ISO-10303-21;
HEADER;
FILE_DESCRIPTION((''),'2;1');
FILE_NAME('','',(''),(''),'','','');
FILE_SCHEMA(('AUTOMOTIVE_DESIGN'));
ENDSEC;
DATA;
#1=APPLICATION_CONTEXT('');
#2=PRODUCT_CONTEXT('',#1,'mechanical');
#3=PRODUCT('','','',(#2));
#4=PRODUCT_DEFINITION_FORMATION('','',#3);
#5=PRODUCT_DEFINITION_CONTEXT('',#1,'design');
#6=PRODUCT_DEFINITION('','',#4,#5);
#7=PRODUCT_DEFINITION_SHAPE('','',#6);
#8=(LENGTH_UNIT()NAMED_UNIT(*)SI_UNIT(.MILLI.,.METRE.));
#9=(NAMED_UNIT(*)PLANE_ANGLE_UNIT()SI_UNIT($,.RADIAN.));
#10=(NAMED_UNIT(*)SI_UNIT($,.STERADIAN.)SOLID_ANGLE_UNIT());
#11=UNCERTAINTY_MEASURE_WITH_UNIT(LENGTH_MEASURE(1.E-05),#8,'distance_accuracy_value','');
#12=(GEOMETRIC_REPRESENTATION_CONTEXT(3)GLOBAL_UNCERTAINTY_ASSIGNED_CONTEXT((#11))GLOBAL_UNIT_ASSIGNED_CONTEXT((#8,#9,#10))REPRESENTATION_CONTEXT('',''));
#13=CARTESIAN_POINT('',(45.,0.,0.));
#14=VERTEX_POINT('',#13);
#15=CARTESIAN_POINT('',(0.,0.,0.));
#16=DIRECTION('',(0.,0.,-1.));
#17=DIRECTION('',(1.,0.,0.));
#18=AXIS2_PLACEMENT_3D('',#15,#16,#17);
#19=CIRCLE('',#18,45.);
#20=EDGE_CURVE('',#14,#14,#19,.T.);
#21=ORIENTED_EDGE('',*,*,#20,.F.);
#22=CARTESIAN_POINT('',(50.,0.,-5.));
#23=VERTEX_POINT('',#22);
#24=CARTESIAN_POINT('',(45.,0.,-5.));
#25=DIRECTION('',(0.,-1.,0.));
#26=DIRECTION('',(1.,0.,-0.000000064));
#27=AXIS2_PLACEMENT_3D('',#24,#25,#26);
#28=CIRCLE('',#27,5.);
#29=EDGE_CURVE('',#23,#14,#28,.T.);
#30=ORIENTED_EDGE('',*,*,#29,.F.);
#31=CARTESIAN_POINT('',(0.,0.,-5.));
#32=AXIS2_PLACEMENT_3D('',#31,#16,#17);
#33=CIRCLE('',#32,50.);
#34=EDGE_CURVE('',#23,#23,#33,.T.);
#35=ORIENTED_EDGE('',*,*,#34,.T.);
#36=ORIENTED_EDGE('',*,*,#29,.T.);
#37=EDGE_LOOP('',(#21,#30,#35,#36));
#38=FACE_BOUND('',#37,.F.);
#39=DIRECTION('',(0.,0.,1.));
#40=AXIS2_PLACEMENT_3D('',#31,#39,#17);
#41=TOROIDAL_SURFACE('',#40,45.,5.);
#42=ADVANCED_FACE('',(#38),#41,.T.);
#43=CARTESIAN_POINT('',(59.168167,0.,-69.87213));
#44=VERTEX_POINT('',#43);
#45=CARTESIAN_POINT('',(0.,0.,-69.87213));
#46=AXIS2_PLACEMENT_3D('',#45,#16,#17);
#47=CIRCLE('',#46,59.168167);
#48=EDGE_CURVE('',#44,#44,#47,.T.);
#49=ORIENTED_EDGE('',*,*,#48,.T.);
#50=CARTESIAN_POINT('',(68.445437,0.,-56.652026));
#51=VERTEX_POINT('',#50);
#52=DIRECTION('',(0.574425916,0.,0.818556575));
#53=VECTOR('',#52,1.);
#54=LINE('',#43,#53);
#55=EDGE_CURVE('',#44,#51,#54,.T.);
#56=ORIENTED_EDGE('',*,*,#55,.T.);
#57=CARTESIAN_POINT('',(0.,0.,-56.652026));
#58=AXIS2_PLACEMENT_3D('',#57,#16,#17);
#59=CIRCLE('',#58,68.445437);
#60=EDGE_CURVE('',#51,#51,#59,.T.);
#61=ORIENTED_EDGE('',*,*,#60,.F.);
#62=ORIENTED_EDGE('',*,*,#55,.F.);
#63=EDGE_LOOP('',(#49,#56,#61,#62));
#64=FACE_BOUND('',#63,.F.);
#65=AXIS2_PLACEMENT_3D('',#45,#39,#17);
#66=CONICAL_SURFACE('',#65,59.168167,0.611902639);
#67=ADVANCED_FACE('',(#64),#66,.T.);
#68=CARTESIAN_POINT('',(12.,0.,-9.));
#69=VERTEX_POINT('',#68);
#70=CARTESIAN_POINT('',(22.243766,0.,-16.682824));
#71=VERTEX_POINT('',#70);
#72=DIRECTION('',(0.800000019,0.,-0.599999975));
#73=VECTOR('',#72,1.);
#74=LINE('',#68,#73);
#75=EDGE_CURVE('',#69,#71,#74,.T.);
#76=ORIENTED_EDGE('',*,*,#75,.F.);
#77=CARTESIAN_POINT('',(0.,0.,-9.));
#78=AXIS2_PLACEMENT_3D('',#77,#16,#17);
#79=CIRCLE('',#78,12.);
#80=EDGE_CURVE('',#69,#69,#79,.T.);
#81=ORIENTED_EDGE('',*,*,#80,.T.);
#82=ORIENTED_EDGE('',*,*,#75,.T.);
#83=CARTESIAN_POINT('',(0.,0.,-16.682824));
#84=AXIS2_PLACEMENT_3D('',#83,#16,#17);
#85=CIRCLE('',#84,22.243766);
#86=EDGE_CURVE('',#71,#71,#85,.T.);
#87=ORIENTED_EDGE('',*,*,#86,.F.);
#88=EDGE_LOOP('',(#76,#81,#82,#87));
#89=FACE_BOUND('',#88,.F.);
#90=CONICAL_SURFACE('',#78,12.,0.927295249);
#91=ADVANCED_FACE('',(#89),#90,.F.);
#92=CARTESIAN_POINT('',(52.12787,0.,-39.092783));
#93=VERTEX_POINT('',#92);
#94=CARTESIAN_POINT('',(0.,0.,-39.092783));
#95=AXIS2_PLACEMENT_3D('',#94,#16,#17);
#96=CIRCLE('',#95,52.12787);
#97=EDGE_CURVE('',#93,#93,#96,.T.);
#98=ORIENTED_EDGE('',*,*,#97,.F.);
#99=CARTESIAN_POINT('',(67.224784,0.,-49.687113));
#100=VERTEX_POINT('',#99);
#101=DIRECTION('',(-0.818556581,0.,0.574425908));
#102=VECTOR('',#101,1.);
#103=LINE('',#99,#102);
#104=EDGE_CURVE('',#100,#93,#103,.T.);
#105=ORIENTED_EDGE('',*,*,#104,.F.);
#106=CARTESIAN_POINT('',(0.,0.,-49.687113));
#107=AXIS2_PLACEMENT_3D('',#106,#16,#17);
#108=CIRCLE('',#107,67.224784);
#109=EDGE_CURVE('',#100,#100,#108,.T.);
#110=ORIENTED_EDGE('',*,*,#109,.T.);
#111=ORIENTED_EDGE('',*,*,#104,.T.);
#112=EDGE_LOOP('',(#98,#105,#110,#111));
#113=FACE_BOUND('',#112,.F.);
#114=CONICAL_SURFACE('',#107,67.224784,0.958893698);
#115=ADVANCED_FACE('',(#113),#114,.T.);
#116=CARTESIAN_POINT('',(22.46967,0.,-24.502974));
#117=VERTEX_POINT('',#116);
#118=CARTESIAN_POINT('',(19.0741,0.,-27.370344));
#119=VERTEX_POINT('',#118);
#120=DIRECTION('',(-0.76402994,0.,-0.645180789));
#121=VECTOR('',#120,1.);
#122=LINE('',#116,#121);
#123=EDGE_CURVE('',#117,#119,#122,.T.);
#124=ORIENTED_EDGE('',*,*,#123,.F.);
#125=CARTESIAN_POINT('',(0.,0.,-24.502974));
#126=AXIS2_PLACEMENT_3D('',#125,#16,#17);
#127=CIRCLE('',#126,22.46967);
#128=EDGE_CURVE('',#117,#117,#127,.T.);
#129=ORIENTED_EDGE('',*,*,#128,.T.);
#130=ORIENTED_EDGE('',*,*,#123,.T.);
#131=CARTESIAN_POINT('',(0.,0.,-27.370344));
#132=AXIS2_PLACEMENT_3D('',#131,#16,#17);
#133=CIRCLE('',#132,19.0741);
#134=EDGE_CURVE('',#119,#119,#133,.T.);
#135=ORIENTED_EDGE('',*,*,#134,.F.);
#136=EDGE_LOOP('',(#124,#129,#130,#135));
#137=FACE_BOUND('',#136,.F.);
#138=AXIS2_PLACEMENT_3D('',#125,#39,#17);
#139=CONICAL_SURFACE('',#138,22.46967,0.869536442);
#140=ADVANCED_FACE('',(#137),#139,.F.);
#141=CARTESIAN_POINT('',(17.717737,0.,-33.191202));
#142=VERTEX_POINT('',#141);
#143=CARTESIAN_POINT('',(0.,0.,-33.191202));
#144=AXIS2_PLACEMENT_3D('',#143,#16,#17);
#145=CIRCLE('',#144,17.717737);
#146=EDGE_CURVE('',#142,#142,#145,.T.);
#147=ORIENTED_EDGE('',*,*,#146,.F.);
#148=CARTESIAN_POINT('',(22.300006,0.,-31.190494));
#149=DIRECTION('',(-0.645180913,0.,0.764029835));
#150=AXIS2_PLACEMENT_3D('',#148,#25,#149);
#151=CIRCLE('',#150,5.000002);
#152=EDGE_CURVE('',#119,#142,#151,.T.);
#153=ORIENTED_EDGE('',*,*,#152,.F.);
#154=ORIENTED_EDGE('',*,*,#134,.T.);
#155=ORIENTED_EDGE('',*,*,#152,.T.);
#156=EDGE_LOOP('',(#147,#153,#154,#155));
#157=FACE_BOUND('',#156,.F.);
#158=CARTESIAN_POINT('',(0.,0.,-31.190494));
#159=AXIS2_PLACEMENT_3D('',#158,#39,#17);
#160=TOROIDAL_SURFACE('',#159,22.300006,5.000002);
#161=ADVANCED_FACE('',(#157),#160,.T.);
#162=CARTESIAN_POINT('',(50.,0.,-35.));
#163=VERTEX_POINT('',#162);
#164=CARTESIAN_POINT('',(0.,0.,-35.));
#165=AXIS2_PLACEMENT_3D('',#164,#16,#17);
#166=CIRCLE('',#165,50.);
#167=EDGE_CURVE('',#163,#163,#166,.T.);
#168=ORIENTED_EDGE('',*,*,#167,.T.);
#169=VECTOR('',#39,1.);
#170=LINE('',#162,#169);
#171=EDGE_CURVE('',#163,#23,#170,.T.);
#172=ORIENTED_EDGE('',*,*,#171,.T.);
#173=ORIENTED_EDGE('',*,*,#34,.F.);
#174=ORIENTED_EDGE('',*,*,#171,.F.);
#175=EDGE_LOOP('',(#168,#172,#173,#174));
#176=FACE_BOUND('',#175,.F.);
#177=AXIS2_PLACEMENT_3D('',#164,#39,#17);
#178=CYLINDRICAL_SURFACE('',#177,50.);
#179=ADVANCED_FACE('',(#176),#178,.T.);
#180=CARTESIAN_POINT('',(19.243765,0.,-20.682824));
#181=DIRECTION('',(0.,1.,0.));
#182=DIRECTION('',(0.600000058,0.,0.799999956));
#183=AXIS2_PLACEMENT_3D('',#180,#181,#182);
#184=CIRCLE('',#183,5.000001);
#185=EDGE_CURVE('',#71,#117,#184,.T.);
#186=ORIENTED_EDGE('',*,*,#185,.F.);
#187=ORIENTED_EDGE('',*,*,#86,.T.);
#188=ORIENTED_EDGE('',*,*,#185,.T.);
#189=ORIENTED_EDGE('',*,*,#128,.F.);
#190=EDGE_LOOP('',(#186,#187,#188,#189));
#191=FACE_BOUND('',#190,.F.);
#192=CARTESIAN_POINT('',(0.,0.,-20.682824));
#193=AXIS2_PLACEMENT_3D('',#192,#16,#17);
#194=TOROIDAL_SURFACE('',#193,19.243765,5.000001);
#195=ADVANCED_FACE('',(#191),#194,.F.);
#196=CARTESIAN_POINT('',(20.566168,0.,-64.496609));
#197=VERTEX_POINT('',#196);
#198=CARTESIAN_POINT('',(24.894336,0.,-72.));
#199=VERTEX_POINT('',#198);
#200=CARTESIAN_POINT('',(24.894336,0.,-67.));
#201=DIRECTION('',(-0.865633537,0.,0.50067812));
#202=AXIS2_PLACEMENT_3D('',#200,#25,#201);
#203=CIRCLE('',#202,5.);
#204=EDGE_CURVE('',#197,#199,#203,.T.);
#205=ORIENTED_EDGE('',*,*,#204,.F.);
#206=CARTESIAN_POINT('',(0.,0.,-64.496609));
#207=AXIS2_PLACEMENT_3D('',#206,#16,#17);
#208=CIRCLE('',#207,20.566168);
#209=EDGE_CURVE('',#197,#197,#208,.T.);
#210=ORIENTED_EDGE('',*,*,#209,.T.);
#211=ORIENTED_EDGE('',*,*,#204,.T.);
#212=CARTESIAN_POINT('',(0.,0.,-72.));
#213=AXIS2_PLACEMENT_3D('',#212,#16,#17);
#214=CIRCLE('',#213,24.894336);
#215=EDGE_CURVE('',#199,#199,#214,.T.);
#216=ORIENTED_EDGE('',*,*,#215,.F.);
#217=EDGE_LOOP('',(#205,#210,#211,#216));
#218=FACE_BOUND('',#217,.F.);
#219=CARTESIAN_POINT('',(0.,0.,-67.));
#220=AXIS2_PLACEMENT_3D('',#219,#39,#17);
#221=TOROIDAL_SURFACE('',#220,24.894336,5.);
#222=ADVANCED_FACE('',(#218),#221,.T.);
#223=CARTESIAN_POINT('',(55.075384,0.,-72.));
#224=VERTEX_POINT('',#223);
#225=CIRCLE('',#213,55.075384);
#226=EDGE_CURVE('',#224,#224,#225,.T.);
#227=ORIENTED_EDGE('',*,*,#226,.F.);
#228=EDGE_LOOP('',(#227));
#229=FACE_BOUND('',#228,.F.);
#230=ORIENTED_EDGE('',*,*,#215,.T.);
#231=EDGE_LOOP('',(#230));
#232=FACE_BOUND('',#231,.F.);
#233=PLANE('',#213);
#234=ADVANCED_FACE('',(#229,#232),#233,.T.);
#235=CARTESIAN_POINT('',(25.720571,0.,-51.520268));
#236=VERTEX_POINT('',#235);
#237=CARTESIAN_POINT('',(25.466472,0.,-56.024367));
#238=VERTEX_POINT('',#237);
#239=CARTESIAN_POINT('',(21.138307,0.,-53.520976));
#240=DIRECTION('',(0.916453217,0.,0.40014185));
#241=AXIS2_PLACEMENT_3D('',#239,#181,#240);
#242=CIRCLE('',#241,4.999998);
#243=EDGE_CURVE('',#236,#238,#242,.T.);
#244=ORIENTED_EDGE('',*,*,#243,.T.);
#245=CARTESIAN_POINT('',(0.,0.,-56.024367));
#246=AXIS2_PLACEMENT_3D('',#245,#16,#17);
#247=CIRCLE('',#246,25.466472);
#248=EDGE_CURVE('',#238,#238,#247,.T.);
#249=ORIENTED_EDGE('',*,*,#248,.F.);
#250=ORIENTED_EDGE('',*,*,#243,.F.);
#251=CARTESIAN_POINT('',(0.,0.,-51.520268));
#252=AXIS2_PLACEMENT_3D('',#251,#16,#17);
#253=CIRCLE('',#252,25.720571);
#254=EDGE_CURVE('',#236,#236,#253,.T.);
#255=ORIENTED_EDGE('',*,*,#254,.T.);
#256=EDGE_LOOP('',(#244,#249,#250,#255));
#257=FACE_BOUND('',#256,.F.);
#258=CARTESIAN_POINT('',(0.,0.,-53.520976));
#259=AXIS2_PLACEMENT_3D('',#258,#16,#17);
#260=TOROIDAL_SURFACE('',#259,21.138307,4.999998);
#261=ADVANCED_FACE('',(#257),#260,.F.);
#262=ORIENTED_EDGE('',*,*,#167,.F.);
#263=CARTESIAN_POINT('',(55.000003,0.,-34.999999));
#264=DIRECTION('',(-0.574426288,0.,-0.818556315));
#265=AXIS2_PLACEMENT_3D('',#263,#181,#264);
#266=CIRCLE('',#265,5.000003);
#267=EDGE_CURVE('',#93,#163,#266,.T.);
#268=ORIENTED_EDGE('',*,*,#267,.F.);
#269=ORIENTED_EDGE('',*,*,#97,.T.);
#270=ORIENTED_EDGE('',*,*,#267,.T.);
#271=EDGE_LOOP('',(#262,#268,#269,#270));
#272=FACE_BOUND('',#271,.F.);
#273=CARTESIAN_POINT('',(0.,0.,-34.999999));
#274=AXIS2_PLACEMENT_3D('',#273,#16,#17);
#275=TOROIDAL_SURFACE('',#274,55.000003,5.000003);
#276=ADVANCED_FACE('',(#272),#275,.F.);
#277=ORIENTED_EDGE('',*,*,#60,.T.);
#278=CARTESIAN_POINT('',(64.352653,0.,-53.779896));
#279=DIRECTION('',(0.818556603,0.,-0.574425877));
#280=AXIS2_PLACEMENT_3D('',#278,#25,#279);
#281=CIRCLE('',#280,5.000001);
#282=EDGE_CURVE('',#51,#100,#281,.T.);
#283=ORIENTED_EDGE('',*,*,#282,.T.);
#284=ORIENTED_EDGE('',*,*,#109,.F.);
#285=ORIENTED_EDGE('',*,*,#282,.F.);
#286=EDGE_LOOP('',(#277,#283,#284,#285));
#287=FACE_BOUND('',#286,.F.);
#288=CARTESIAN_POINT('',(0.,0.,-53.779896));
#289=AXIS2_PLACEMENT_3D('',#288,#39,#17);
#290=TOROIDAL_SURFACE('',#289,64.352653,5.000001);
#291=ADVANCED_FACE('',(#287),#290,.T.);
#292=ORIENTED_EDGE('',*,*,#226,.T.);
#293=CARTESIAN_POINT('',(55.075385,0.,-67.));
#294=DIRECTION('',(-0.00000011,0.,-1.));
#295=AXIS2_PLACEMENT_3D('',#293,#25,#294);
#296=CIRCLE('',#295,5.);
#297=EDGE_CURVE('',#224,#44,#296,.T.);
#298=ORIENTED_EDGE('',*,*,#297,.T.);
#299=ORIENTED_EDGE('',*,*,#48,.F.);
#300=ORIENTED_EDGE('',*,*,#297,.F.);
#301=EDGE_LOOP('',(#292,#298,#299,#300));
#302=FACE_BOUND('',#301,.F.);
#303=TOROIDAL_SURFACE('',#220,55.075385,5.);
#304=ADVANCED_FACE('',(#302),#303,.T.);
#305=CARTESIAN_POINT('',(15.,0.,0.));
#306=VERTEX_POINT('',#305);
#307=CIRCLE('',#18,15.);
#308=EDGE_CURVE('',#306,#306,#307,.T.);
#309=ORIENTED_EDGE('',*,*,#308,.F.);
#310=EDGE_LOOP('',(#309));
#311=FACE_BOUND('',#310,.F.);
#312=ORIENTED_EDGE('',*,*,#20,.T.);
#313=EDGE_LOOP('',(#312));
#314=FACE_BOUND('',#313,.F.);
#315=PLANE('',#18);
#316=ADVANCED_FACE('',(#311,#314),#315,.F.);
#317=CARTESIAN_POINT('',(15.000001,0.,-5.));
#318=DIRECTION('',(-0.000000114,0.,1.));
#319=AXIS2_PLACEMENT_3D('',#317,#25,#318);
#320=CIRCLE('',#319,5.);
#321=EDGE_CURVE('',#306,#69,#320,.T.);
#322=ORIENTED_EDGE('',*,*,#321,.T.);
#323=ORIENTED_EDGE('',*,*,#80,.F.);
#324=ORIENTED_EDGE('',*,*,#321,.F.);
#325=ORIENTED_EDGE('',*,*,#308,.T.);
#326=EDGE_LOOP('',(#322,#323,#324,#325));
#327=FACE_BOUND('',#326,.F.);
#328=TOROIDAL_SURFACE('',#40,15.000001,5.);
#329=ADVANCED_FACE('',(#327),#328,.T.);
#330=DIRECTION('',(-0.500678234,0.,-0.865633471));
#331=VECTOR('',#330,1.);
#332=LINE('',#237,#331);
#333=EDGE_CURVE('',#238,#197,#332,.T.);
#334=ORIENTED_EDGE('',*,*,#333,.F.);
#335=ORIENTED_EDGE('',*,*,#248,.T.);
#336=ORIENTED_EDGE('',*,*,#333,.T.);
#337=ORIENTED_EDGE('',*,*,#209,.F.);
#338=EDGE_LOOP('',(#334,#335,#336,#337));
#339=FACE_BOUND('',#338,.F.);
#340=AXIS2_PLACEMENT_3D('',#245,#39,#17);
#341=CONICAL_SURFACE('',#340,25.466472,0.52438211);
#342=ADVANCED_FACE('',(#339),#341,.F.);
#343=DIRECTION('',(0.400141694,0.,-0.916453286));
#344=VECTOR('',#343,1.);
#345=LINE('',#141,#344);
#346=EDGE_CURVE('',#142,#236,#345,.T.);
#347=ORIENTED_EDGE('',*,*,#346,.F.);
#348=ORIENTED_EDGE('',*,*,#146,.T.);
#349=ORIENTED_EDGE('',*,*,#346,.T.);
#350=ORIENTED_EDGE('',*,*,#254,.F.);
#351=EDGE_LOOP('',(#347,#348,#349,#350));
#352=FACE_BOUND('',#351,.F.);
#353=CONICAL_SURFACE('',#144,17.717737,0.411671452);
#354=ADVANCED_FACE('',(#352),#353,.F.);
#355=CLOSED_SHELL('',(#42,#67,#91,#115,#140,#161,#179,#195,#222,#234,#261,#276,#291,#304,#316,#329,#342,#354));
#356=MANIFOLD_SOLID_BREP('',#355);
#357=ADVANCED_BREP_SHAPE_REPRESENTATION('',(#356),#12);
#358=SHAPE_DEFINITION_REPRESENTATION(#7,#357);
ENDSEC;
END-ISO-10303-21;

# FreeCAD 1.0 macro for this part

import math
import FreeCAD as App
import Part
import Sketcher

V = App.Vector
Q = App.Units.Quantity

doc = App.newDocument("Part")
body = doc.addObject("PartDesign::Body", "Body")

sketch1 = body.newObject("Sketcher::SketchObject", "Sketch")
sketch1.AttachmentSupport = (doc.getObject("XZ_Plane"), [""])
sketch1.MapMode = "FlatFace"
sketch1.addGeometry(Part.LineSegment(V(45, 0, 0), V(15, 0, 0)), False)
sketch1.addGeometry(Part.ArcOfCircle(Part.Circle(V(15, -5, 0), V(0, 0, 1), 5), math.radians(90), math.radians(233)), False)
sketch1.addGeometry(Part.LineSegment(V(12, -9, 0), V(22.2, -16.7, 0)), False)
sketch1.addGeometry(Part.ArcOfCircle(Part.Circle(V(19.2, -20.7, 0), V(0, 0, 1), 5), math.radians(-50), math.radians(53)), False)
sketch1.addGeometry(Part.LineSegment(V(22.5, -24.5, 0), V(19.1, -27.4, 0)), False)
sketch1.addGeometry(Part.ArcOfCircle(Part.Circle(V(22.3, -31.2, 0), V(0, 0, 1), 5), math.radians(130), math.radians(204)), False)
sketch1.addGeometry(Part.LineSegment(V(17.7, -33.2, 0), V(25.7, -51.5, 0)), False)
sketch1.addGeometry(Part.ArcOfCircle(Part.Circle(V(21.1, -53.5, 0), V(0, 0, 1), 5), math.radians(-30), math.radians(24)), False)
sketch1.addGeometry(Part.LineSegment(V(25.5, -56, 0), V(20.6, -64.5, 0)), False)
sketch1.addGeometry(Part.ArcOfCircle(Part.Circle(V(24.9, -67, 0), V(0, 0, 1), 5), math.radians(150), math.radians(270)), False)
sketch1.addGeometry(Part.LineSegment(V(24.9, -72, 0), V(55.1, -72, 0)), False)
sketch1.addGeometry(Part.ArcOfCircle(Part.Circle(V(55.1, -67, 0), V(0, 0, 1), 5), math.radians(-90), math.radians(-35)), False)
sketch1.addGeometry(Part.LineSegment(V(59.2, -69.9, 0), V(68.4, -56.7, 0)), False)
sketch1.addGeometry(Part.ArcOfCircle(Part.Circle(V(64.4, -53.8, 0), V(0, 0, 1), 5), math.radians(-35), math.radians(55)), False)
sketch1.addGeometry(Part.LineSegment(V(67.2, -49.7, 0), V(52.1, -39.1, 0)), False)
sketch1.addGeometry(Part.ArcOfCircle(Part.Circle(V(55, -35, 0), V(0, 0, 1), 5), math.radians(-180), math.radians(-125)), False)
sketch1.addGeometry(Part.LineSegment(V(50, -35, 0), V(50, -5, 0)), False)
sketch1.addGeometry(Part.ArcOfCircle(Part.Circle(V(45, -5, 0), V(0, 0, 1), 5), math.radians(0), math.radians(90)), False)
sketch1.addConstraint(Sketcher.Constraint("Tangent", 0, 2, 1, 1))
sketch1.addConstraint(Sketcher.Constraint("Tangent", 1, 2, 2, 1))
sketch1.addConstraint(Sketcher.Constraint("Tangent", 2, 2, 3, 2))
sketch1.addConstraint(Sketcher.Constraint("Tangent", 3, 1, 4, 1))
sketch1.addConstraint(Sketcher.Constraint("Tangent", 4, 2, 5, 1))
sketch1.addConstraint(Sketcher.Constraint("Tangent", 5, 2, 6, 1))
sketch1.addConstraint(Sketcher.Constraint("Tangent", 6, 2, 7, 2))
sketch1.addConstraint(Sketcher.Constraint("Tangent", 7, 1, 8, 1))
sketch1.addConstraint(Sketcher.Constraint("Tangent", 8, 2, 9, 1))
sketch1.addConstraint(Sketcher.Constraint("Tangent", 9, 2, 10, 1))
sketch1.addConstraint(Sketcher.Constraint("Tangent", 10, 2, 11, 1))
sketch1.addConstraint(Sketcher.Constraint("Tangent", 11, 2, 12, 1))
sketch1.addConstraint(Sketcher.Constraint("Tangent", 12, 2, 13, 1))
sketch1.addConstraint(Sketcher.Constraint("Tangent", 13, 2, 14, 1))
sketch1.addConstraint(Sketcher.Constraint("Tangent", 14, 2, 15, 2))
sketch1.addConstraint(Sketcher.Constraint("Tangent", 15, 1, 16, 1))
sketch1.addConstraint(Sketcher.Constraint("Tangent", 16, 2, 17, 1))
sketch1.addConstraint(Sketcher.Constraint("Tangent", 17, 2, 0, 1))
sketch1.addConstraint(Sketcher.Constraint("Horizontal", 0))
sketch1.addConstraint(Sketcher.Constraint("Horizontal", 10))
sketch1.addConstraint(Sketcher.Constraint("Vertical", 16))
sketch1.addConstraint(Sketcher.Constraint("Equal", 1, 3))
sketch1.addConstraint(Sketcher.Constraint("Equal", 3, 5))
sketch1.addConstraint(Sketcher.Constraint("Equal", 5, 9))
sketch1.addConstraint(Sketcher.Constraint("Equal", 9, 11))
sketch1.addConstraint(Sketcher.Constraint("Equal", 11, 13))
sketch1.addConstraint(Sketcher.Constraint("Equal", 5, 15))
sketch1.addConstraint(Sketcher.Constraint("Equal", 13, 17))
sketch1.addConstraint(Sketcher.Constraint("PointOnObject", 0, 2, -1))
sketch1.addConstraint(Sketcher.Constraint("Perpendicular", 12, 14))
sketch1.addConstraint(Sketcher.Constraint("Equal", 0, 16))
sketch1.addConstraint(Sketcher.Constraint("Radius", 1, Q("5 mm")))
sketch1.addConstraint(Sketcher.Constraint("DistanceX", 0, 2, 0, 1, Q("30 mm")))
sketch1.addConstraint(Sketcher.Constraint("Distance", 6, Q("20 mm")))
sketch1.addConstraint(Sketcher.Constraint("DistanceX", -1, 1, 1, 3, Q("15.000001 mm")))
sketch1.addConstraint(Sketcher.Constraint("DistanceY", 9, 3, -1, 1, Q("67 mm")))
sketch1.addConstraint(Sketcher.Constraint("DistanceX", -1, 1, 1, 2, Q("12 mm")))
sketch1.addConstraint(Sketcher.Constraint("Radius", 7, Q("4.999998 mm")))
sketch1.addConstraint(Sketcher.Constraint("DistanceX", 10, 1, 10, 2, Q("30.181048 mm")))
sketch1.addConstraint(Sketcher.Constraint("DistanceX", -1, 1, 4, 2, Q("19.0741 mm")))
sketch1.addConstraint(Sketcher.Constraint("DistanceY", 5, 2, -1, 1, Q("33.191202 mm")))
sketch1.addConstraint(Sketcher.Constraint("DistanceX", 7, 3, 5, 3, Q("1.161699 mm")))
sketch1.addConstraint(Sketcher.Constraint("DistanceY", 13, 3, 5, 3, Q("22.589402 mm")))
sketch1.addConstraint(Sketcher.Constraint("DistanceX", 7, 1, 6, 2, Q("0.254099 mm")))
sketch1.addConstraint(Sketcher.Constraint("DistanceX", 11, 3, 13, 2, Q("12.149399 mm")))
revolution = body.newObject("PartDesign::Revolution", "Revolution")
revolution.Profile = sketch1
revolution.ReferenceAxis = (sketch1, ["V_Axis"])
revolution.Angle = 360

doc.recompute()
